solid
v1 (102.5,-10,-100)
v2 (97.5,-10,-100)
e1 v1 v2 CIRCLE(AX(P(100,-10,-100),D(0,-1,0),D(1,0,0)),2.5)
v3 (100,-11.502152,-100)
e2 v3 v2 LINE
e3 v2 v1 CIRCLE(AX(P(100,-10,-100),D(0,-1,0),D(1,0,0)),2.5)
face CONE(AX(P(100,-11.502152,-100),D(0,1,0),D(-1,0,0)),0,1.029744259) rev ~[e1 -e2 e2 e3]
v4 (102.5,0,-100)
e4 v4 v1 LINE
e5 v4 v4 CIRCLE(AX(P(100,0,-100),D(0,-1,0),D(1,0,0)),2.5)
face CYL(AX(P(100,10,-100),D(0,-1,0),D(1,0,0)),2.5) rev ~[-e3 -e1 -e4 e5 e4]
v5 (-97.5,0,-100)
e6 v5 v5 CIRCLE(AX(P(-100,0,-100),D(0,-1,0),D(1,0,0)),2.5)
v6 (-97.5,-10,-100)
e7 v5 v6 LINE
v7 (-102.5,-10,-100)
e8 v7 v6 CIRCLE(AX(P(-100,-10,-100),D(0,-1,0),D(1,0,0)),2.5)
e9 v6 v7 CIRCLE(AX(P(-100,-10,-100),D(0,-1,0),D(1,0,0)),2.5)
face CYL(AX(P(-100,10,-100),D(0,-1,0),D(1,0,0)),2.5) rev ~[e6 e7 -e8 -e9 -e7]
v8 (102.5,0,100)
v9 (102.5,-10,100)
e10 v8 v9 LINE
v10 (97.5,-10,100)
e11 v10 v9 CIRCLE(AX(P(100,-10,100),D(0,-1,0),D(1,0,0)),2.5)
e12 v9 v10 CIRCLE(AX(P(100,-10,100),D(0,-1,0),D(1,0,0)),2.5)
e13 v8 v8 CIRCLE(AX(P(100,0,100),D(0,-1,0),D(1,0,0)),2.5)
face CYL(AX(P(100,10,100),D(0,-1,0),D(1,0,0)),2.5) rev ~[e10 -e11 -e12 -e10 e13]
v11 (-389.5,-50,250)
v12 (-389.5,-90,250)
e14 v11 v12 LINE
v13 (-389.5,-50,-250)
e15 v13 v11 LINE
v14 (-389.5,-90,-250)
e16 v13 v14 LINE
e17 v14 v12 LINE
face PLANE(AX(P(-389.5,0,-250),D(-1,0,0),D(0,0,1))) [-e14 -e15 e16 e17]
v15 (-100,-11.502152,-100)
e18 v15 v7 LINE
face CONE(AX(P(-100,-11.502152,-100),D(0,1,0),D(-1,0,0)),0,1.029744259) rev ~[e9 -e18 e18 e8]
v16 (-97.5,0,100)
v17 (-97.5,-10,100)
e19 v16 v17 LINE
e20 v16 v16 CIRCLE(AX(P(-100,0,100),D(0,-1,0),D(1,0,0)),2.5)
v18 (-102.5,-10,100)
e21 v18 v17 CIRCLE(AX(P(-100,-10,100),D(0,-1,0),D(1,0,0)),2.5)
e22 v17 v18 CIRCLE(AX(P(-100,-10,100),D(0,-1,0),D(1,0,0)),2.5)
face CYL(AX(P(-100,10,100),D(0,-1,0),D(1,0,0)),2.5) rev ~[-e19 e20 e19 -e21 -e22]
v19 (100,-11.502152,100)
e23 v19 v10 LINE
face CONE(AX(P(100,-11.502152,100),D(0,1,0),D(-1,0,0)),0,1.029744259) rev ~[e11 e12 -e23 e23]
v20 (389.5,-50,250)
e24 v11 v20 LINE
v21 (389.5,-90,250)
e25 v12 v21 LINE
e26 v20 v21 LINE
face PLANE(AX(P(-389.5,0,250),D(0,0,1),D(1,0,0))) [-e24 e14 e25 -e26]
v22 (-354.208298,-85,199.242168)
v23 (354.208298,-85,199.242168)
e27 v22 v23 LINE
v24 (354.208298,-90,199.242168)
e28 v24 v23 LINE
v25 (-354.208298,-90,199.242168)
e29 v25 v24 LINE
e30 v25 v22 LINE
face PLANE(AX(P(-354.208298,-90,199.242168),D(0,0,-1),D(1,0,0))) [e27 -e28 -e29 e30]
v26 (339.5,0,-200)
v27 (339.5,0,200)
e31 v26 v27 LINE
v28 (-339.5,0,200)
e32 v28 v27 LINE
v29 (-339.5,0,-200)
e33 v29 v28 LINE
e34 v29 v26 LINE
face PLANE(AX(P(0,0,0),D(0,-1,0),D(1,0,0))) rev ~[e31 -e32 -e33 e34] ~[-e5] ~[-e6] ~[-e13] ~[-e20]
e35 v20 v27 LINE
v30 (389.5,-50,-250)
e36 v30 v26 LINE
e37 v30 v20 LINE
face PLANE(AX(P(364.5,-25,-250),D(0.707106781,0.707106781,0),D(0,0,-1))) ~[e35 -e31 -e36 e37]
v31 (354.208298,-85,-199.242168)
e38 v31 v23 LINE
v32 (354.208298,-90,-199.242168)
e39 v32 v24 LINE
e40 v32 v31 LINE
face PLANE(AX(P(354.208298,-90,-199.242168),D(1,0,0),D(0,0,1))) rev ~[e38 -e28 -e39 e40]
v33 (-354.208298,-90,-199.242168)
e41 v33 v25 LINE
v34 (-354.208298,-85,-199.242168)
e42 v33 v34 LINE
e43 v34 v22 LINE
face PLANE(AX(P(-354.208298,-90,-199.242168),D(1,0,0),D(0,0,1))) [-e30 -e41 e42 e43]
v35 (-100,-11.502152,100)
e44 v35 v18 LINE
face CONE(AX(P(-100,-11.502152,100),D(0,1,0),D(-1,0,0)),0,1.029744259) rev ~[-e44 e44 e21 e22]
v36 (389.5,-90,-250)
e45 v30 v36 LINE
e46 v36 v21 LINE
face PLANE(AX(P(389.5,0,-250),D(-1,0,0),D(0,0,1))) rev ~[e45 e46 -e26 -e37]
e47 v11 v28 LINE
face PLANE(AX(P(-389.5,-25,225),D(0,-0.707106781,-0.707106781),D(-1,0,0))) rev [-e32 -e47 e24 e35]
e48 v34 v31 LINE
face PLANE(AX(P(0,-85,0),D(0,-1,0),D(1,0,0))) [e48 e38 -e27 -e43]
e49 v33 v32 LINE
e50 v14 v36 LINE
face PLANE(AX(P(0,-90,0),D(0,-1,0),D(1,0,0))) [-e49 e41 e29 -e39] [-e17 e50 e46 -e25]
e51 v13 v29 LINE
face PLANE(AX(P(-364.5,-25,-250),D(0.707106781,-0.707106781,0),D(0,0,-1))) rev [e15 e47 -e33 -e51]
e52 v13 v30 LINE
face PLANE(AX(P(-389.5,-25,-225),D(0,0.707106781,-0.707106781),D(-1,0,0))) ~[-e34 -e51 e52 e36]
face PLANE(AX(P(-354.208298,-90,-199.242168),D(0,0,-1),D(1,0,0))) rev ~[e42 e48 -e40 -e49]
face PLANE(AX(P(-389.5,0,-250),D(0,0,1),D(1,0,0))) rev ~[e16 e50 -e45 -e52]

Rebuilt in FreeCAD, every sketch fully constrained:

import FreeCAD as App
import Part
import Sketcher
from FreeCAD import Vector
Q = App.Units.Quantity


def edges_at(feature, points):
    """Names of the edges that pass closest to the given points."""
    edges = feature.Shape.Edges
    near = lambda p: min(range(len(edges)), key=lambda i: edges[i].distToShape(Part.Vertex(*p))[0])
    return sorted({f"Edge{near(p) + 1}" for p in points})


def add_polygon(sketch, points):
    """Adds a closed chain of lines whose ends are joined by coincident constraints."""
    first, n = sketch.GeometryCount, len(points)
    for a, b in zip(points, points[1:] + points[:1]):
        sketch.addGeometry(Part.LineSegment(App.Vector(*a, 0), App.Vector(*b, 0)), False)
    for i in range(n):
        sketch.addConstraint(Sketcher.Constraint("Coincident", first + i, 2, first + (i + 1) % n, 1))

doc = App.newDocument("Part")
params = doc.addObject("Spreadsheet::Sheet", "Params")
for row, (alias, value) in enumerate([
    ("sketch1_width", "779 mm"),
    ("sketch1_height", "500 mm"),
    ("pad1_length", "90 mm"),
    ("chamfer_size", "50 mm"),
    ("pocket1_length", "5 mm"),
    ("sketch3_diameter", "5 mm"),
    ("hole_diameter", "5 mm"),
    ("hole_depth", "10 mm"),
], start=1):
    params.set(f"A{row}", alias)
    params.set(f"B{row}", "=" + value)
    params.setAlias(f"B{row}", alias)

body = doc.addObject("PartDesign::Body", "Body")

# Sketch on XZ plane
sketch1 = doc.addObject("Sketcher::SketchObject", "Sketch")
body.addObject(sketch1)
sketch1.AttachmentSupport = (doc.XZ_Plane, [""])
sketch1.MapMode = "FlatFace"
add_polygon(sketch1, [(-390, 250), (-390, -250), (390, -250), (390, 250)])  # lines 0-3
sketch1.addConstraint([
    Sketcher.Constraint("Vertical", 0),
    Sketcher.Constraint("Horizontal", 1),
    Sketcher.Constraint("Vertical", 2),
    Sketcher.Constraint("Horizontal", 3),
    Sketcher.Constraint("Symmetric", 0, 2, 2, 2, -1, 1),
    Sketcher.Constraint("DistanceX", 1, 1, 1, 2, Q("779 mm")),
    Sketcher.Constraint("DistanceY", 0, 2, 0, 1, Q("500 mm")),
])
sketch1.setExpression("Constraints[9]", "Params.sketch1_width")
sketch1.setExpression("Constraints[10]", "Params.sketch1_height")
pad1 = doc.addObject("PartDesign::Pad", "Pad")
body.addObject(pad1)
pad1.Profile = sketch1
pad1.setExpression("Length", "Params.pad1_length")
doc.recompute()

chamfer = doc.addObject("PartDesign::Chamfer", "Chamfer")
body.addObject(chamfer)
chamfer.Base = (pad1, edges_at(pad1, [
    (389.5, 0, 0),
    (0, 0, 250),
    (-389.5, 0, 0),
    (0, 0, -250),
]))
chamfer.setExpression("Size", "Params.chamfer_size")

# Sketch on XZ plane
sketch2 = doc.addObject("Sketcher::SketchObject", "Sketch001")
body.addObject(sketch2)
sketch2.AttachmentSupport = (doc.XZ_Plane, [""])
sketch2.MapMode = "FlatFace"
sketch2.AttachmentOffset = App.Placement(Vector(0, 0, 90), App.Rotation())
add_polygon(sketch2, [(-354, 199), (-354, -199), (354, -199), (354, 199)])  # lines 0-3
sketch2.addConstraint([
    Sketcher.Constraint("Vertical", 0),
    Sketcher.Constraint("Horizontal", 1),
    Sketcher.Constraint("Vertical", 2),
    Sketcher.Constraint("Horizontal", 3),
    Sketcher.Constraint("Symmetric", 0, 2, 2, 2, -1, 1),
    Sketcher.Constraint("DistanceX", 0, 2, -1, 1, Q("354.208298 mm")),
    Sketcher.Constraint("DistanceY", 0, 2, 0, 1, Q("398.484336 mm")),
])
pocket1 = doc.addObject("PartDesign::Pocket", "Pocket")
body.addObject(pocket1)
pocket1.Profile = sketch2
pocket1.setExpression("Length", "Params.pocket1_length")

# Sketch on XZ plane
sketch3 = doc.addObject("Sketcher::SketchObject", "Sketch002")
body.addObject(sketch3)
sketch3.AttachmentSupport = (doc.XZ_Plane, [""])
sketch3.MapMode = "FlatFace"
sketch3.addGeometry([
    Part.Circle(Vector(100, 100, 0), Vector(0, 0, 1), 2.5),
    Part.Circle(Vector(-100, 100, 0), Vector(0, 0, 1), 2.5),
    Part.Circle(Vector(100, -100, 0), Vector(0, 0, 1), 2.5),
    Part.Circle(Vector(-100, -100, 0), Vector(0, 0, 1), 2.5),
], False)
sketch3.addConstraint([
    Sketcher.Constraint("Equal", 0, 1),
    Sketcher.Constraint("Equal", 1, 2),
    Sketcher.Constraint("Equal", 2, 3),
    Sketcher.Constraint("Symmetric", 1, 3, 2, 3, -1, 1),
    Sketcher.Constraint("Symmetric", 0, 3, 3, 3, -1, 1),
    Sketcher.Constraint("Symmetric", 0, 3, 1, 3, -2),
    Sketcher.Constraint("Diameter", 0, Q("5 mm")),
    Sketcher.Constraint("DistanceX", -1, 1, 0, 3, Q("100 mm")),
    Sketcher.Constraint("DistanceY", -1, 1, 0, 3, Q("100 mm")),
])
sketch3.setExpression("Constraints[6]", "Params.sketch3_diameter")
doc.recompute()
hole = doc.addObject("PartDesign::Hole", "Hole")
body.addObject(hole)
hole.Profile = sketch3
hole.ThreadType = "None"
hole.setExpression("Diameter", "Params.hole_diameter")
hole.DepthType = "Dimension"
hole.setExpression("Depth", "Params.hole_depth")
hole.DrillPoint = "Angled"
hole.DrillPointAngle = 118
hole.Reversed = True

doc.recompute()
